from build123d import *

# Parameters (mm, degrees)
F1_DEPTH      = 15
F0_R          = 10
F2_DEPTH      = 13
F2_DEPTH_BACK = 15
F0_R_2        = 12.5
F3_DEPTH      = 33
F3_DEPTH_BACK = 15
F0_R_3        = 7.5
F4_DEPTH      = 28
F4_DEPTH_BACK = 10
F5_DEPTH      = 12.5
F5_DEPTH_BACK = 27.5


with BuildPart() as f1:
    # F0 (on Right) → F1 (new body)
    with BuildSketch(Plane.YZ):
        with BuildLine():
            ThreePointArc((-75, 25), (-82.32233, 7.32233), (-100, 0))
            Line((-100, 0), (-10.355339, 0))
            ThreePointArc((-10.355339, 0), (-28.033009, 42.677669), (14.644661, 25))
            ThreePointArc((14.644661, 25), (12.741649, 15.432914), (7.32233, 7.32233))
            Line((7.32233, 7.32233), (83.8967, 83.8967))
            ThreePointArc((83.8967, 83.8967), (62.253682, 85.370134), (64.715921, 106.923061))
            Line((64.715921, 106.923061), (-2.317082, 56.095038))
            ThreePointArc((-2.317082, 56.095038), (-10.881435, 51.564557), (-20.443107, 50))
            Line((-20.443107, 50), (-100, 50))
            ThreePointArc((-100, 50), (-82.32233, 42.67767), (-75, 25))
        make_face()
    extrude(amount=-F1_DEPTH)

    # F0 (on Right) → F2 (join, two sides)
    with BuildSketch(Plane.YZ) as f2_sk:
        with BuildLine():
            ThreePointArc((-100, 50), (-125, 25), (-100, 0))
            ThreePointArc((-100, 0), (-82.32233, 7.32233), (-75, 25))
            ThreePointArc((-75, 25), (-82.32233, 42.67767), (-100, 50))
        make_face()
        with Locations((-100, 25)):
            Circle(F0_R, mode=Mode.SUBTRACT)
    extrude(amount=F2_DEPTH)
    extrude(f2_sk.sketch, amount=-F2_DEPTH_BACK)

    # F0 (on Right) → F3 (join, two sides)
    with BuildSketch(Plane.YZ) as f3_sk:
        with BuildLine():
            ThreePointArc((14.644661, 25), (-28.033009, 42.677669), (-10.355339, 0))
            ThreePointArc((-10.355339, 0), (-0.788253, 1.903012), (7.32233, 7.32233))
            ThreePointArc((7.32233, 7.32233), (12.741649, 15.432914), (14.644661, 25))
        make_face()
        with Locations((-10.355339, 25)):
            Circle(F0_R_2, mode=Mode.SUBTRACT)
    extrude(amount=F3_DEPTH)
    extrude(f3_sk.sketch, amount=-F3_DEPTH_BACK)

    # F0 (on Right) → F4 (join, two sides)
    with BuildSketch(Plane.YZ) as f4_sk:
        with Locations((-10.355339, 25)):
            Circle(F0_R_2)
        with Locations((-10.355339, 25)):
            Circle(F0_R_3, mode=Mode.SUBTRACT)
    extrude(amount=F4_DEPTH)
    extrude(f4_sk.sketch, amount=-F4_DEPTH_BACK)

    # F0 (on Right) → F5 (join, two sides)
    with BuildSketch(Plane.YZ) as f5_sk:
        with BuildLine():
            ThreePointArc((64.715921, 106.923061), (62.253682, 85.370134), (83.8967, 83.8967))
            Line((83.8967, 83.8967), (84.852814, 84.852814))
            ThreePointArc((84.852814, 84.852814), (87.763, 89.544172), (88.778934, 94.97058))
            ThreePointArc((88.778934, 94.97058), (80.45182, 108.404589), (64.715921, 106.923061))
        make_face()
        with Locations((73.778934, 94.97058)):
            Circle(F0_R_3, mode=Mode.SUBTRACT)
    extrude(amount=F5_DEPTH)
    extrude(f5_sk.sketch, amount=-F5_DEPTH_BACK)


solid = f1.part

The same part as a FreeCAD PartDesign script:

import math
import FreeCAD as App
import Part
import Sketcher
from FreeCAD import Vector
Q = App.Units.Quantity

doc = App.newDocument("Part")
body = doc.addObject("PartDesign::Body", "Body")

sketch1 = doc.addObject("Sketcher::SketchObject", "Sketch")
body.addObject(sketch1)
sketch1.AttachmentSupport = (doc.YZ_Plane, [""])
sketch1.MapMode = "FlatFace"
sketch1.addGeometry(Part.ArcOfCircle(Part.Circle(Vector(-100, 25, 0), Vector(0, 0, 1), 25), math.radians(-90), math.radians(0)), False)
sketch1.addGeometry(Part.LineSegment(Vector(-100, 0, 0), Vector(-10, 0, 0)), False)
sketch1.addGeometry(Part.ArcOfCircle(Part.Circle(Vector(-10, 25, 0), Vector(0, 0, 1), 25), math.radians(0), math.radians(270)), False)
sketch1.addGeometry(Part.ArcOfCircle(Part.Circle(Vector(-10, 25, 0), Vector(0, 0, 1), 25), math.radians(-45), math.radians(0)), False)
sketch1.addGeometry(Part.LineSegment(Vector(7, 7, 0), Vector(84, 84, 0)), False)
sketch1.addGeometry(Part.ArcOfCircle(Part.Circle(Vector(74, 95, 0), Vector(0, 0, 1), 15), math.radians(127), math.radians(312)), False)
sketch1.addGeometry(Part.LineSegment(Vector(65, 107, 0), Vector(-2, 56, 0)), False)
sketch1.addGeometry(Part.ArcOfCircle(Part.Circle(Vector(-20, 80, 0), Vector(0, 0, 1), 30), math.radians(-90), math.radians(-53)), False)
sketch1.addGeometry(Part.LineSegment(Vector(-20, 50, 0), Vector(-100, 50, 0)), False)
sketch1.addGeometry(Part.ArcOfCircle(Part.Circle(Vector(-100, 25, 0), Vector(0, 0, 1), 25), math.radians(0), math.radians(90)), False)
sketch1.addConstraint(Sketcher.Constraint("Tangent", 0, 1, 1, 1))
sketch1.addConstraint(Sketcher.Constraint("Tangent", 1, 2, 2, 2))
sketch1.addConstraint(Sketcher.Constraint("Tangent", 2, 1, 3, 2))
sketch1.addConstraint(Sketcher.Constraint("Tangent", 3, 1, 4, 1))
sketch1.addConstraint(Sketcher.Constraint("Coincident", 4, 2, 5, 2))
sketch1.addConstraint(Sketcher.Constraint("Tangent", 5, 1, 6, 1))
sketch1.addConstraint(Sketcher.Constraint("Tangent", 6, 2, 7, 2))
sketch1.addConstraint(Sketcher.Constraint("Tangent", 7, 1, 8, 1))
sketch1.addConstraint(Sketcher.Constraint("Tangent", 8, 2, 9, 2))
sketch1.addConstraint(Sketcher.Constraint("Tangent", 9, 1, 0, 2))
sketch1.addConstraint(Sketcher.Constraint("Horizontal", 1))
sketch1.addConstraint(Sketcher.Constraint("Horizontal", 8))
sketch1.addConstraint(Sketcher.Constraint("Equal", 0, 2))
sketch1.addConstraint(Sketcher.Constraint("Equal", 2, 9))
sketch1.addConstraint(Sketcher.Constraint("PointOnObject", 0, 1, -1))
sketch1.addConstraint(Sketcher.Constraint("Horizontal", 9, 3, 2, 1))
sketch1.addConstraint(Sketcher.Constraint("Horizontal", 2, 1, 9, 1))
sketch1.addConstraint(Sketcher.Constraint("Radius", 0, Q("24.999998 mm")))
sketch1.addConstraint(Sketcher.Constraint("Radius", 5, Q("15 mm")))
sketch1.addConstraint(Sketcher.Constraint("Radius", 7, Q("30.000002 mm")))
sketch1.addConstraint(Sketcher.Constraint("Angle", 4, Q("45 deg")))
sketch1.addConstraint(Sketcher.Constraint("DistanceX", 0, 3, -1, 1, Q("99.999998 mm")))
sketch1.addConstraint(Sketcher.Constraint("Radius", 3, Q("25.000002 mm")))
sketch1.addConstraint(Sketcher.Constraint("DistanceX", 1, 1, 1, 2, Q("89.644661 mm")))
sketch1.addConstraint(Sketcher.Constraint("DistanceX", -1, 1, 4, 2, Q("83.8967 mm")))
sketch1.addConstraint(Sketcher.Constraint("Distance", 6, Q("84.124381 mm")))
sketch1.addConstraint(Sketcher.Constraint("DistanceX", 8, 2, 8, 1, Q("79.556893 mm")))
pad1 = doc.addObject("PartDesign::Pad", "Pad")
body.addObject(pad1)
pad1.Profile = sketch1
pad1.Length = 15
pad1.Reversed = True

sketch2 = doc.addObject("Sketcher::SketchObject", "Sketch001")
body.addObject(sketch2)
sketch2.AttachmentSupport = (doc.YZ_Plane, [""])
sketch2.MapMode = "FlatFace"
sketch2.addGeometry(Part.ArcOfCircle(Part.Circle(Vector(-100, 25, 0), Vector(0, 0, 1), 25), math.radians(90), math.radians(270)), False)
sketch2.addGeometry(Part.ArcOfCircle(Part.Circle(Vector(-100, 25, 0), Vector(0, 0, 1), 25), math.radians(-90), math.radians(0)), False)
sketch2.addGeometry(Part.ArcOfCircle(Part.Circle(Vector(-100, 25, 0), Vector(0, 0, 1), 25), math.radians(0), math.radians(90)), False)
sketch2.addGeometry(Part.Circle(Vector(-100, 25, 0), Vector(0, 0, 1), 10), False)
sketch2.addConstraint(Sketcher.Constraint("Tangent", 0, 2, 1, 1))
sketch2.addConstraint(Sketcher.Constraint("Tangent", 1, 2, 2, 1))
sketch2.addConstraint(Sketcher.Constraint("Tangent", 2, 2, 0, 1))
sketch2.addConstraint(Sketcher.Constraint("Coincident", 3, 3, 0, 3))
sketch2.addConstraint(Sketcher.Constraint("PointOnObject", 0, 2, -1))
sketch2.addConstraint(Sketcher.Constraint("Horizontal", 3, 3, 1, 2))
sketch2.addConstraint(Sketcher.Constraint("Vertical", 3, 3, 0, 2))
sketch2.addConstraint(Sketcher.Constraint("Vertical", 0, 2, 2, 2))
sketch2.addConstraint(Sketcher.Constraint("Diameter", 3, Q("20 mm")))
sketch2.addConstraint(Sketcher.Constraint("Radius", 0, Q("25 mm")))
sketch2.addConstraint(Sketcher.Constraint("DistanceX", 0, 3, -1, 1, Q("100 mm")))
pad2 = doc.addObject("PartDesign::Pad", "Pad001")
body.addObject(pad2)
pad2.Profile = sketch2
pad2.Type = "TwoLengths"
pad2.Length = 13
pad2.Length2 = 15

sketch3 = doc.addObject("Sketcher::SketchObject", "Sketch002")
body.addObject(sketch3)
sketch3.AttachmentSupport = (doc.YZ_Plane, [""])
sketch3.MapMode = "FlatFace"
sketch3.addGeometry(Part.ArcOfCircle(Part.Circle(Vector(-10, 25, 0), Vector(0, 0, 1), 25), math.radians(0), math.radians(270)), False)
sketch3.addGeometry(Part.ArcOfCircle(Part.Circle(Vector(-10, 25, 0), Vector(0, 0, 1), 25), math.radians(-90), math.radians(-45)), False)
sketch3.addGeometry(Part.ArcOfCircle(Part.Circle(Vector(-10, 25, 0), Vector(0, 0, 1), 25), math.radians(-45), math.radians(0)), False)
sketch3.addGeometry(Part.Circle(Vector(-10, 25, 0), Vector(0, 0, 1), 12), False)
sketch3.addConstraint(Sketcher.Constraint("Tangent", 0, 2, 1, 1))
sketch3.addConstraint(Sketcher.Constraint("Tangent", 1, 2, 2, 1))
sketch3.addConstraint(Sketcher.Constraint("Tangent", 2, 2, 0, 1))
sketch3.addConstraint(Sketcher.Constraint("Coincident", 3, 3, 0, 3))
sketch3.addConstraint(Sketcher.Constraint("PointOnObject", 0, 2, -1))
sketch3.addConstraint(Sketcher.Constraint("Horizontal", 3, 3, 2, 2))
sketch3.addConstraint(Sketcher.Constraint("Vertical", 3, 3, 0, 2))
sketch3.addConstraint(Sketcher.Constraint("Diameter", 3, Q("25 mm")))
sketch3.addConstraint(Sketcher.Constraint("Radius", 0, Q("25 mm")))
sketch3.addConstraint(Sketcher.Constraint("DistanceX", 0, 3, -1, 1, Q("10.355339 mm")))
sketch3.addConstraint(Sketcher.Constraint("DistanceX", -1, 1, 1, 2, Q("7.32233 mm")))
pad3 = doc.addObject("PartDesign::Pad", "Pad002")
body.addObject(pad3)
pad3.Profile = sketch3
pad3.Type = "TwoLengths"
pad3.Length = 33
pad3.Length2 = 15

sketch4 = doc.addObject("Sketcher::SketchObject", "Sketch003")
body.addObject(sketch4)
sketch4.AttachmentSupport = (doc.YZ_Plane, [""])
sketch4.MapMode = "FlatFace"
sketch4.addGeometry(Part.Circle(Vector(-10, 25, 0), Vector(0, 0, 1), 12), False)
sketch4.addGeometry(Part.Circle(Vector(-10, 25, 0), Vector(0, 0, 1), 8), False)
sketch4.addConstraint(Sketcher.Constraint("Coincident", 1, 3, 0, 3))
sketch4.addConstraint(Sketcher.Constraint("Diameter", 0, Q("25 mm")))
sketch4.addConstraint(Sketcher.Constraint("Diameter", 1, Q("15 mm")))
sketch4.addConstraint(Sketcher.Constraint("DistanceY", -1, 1, 0, 3, Q("25 mm")))
sketch4.addConstraint(Sketcher.Constraint("DistanceX", 0, 3, -1, 1, Q("10.355339 mm")))
pad4 = doc.addObject("PartDesign::Pad", "Pad003")
body.addObject(pad4)
pad4.Profile = sketch4
pad4.Type = "TwoLengths"
pad4.Length = 28
pad4.Length2 = 10

sketch5 = doc.addObject("Sketcher::SketchObject", "Sketch004")
body.addObject(sketch5)
sketch5.AttachmentSupport = (doc.YZ_Plane, [""])
sketch5.MapMode = "FlatFace"
sketch5.addGeometry(Part.ArcOfCircle(Part.Circle(Vector(73.8, 95, 0), Vector(0, 0, 1), 15), math.radians(127), math.radians(312)), False)
sketch5.addGeometry(Part.LineSegment(Vector(83.9, 83.9, 0), Vector(84.9, 84.9, 0)), False)
sketch5.addGeometry(Part.ArcOfCircle(Part.Circle(Vector(73.8, 95, 0), Vector(0, 0, 1), 15), math.radians(-42), math.radians(0)), False)
sketch5.addGeometry(Part.ArcOfCircle(Part.Circle(Vector(73.8, 95, 0), Vector(0, 0, 1), 15), math.radians(0), math.radians(127)), False)
sketch5.addGeometry(Part.Circle(Vector(73.8, 95, 0), Vector(0, 0, 1), 7.5), False)
sketch5.addConstraint(Sketcher.Constraint("Coincident", 0, 2, 1, 1))
sketch5.addConstraint(Sketcher.Constraint("Coincident", 1, 2, 2, 1))
sketch5.addConstraint(Sketcher.Constraint("Tangent", 2, 2, 3, 1))
sketch5.addConstraint(Sketcher.Constraint("Tangent", 3, 2, 0, 1))
sketch5.addConstraint(Sketcher.Constraint("Coincident", 2, 3, 0, 3))
sketch5.addConstraint(Sketcher.Constraint("Coincident", 4, 3, 0, 3))
sketch5.addConstraint(Sketcher.Constraint("Horizontal", 4, 3, 2, 2))
sketch5.addConstraint(Sketcher.Constraint("Diameter", 4, Q("15 mm")))
sketch5.addConstraint(Sketcher.Constraint("Radius", 0, Q("15 mm")))
sketch5.addConstraint(Sketcher.Constraint("Angle", 1, Q("45 deg")))
sketch5.addConstraint(Sketcher.Constraint("DistanceX", -1, 1, 0, 2, Q("83.8967 mm")))
sketch5.addConstraint(Sketcher.Constraint("DistanceY", -1, 1, 0, 2, Q("83.8967 mm")))
sketch5.addConstraint(Sketcher.Constraint("Distance", 1, Q("1.352149 mm")))
sketch5.addConstraint(Sketcher.Constraint("DistanceX", -1, 1, 3, 2, Q("64.715921 mm")))
pad5 = doc.addObject("PartDesign::Pad", "Pad004")
body.addObject(pad5)
pad5.Profile = sketch5
pad5.Type = "TwoLengths"
pad5.Length = 12.5
pad5.Length2 = 27.5

doc.recompute()
